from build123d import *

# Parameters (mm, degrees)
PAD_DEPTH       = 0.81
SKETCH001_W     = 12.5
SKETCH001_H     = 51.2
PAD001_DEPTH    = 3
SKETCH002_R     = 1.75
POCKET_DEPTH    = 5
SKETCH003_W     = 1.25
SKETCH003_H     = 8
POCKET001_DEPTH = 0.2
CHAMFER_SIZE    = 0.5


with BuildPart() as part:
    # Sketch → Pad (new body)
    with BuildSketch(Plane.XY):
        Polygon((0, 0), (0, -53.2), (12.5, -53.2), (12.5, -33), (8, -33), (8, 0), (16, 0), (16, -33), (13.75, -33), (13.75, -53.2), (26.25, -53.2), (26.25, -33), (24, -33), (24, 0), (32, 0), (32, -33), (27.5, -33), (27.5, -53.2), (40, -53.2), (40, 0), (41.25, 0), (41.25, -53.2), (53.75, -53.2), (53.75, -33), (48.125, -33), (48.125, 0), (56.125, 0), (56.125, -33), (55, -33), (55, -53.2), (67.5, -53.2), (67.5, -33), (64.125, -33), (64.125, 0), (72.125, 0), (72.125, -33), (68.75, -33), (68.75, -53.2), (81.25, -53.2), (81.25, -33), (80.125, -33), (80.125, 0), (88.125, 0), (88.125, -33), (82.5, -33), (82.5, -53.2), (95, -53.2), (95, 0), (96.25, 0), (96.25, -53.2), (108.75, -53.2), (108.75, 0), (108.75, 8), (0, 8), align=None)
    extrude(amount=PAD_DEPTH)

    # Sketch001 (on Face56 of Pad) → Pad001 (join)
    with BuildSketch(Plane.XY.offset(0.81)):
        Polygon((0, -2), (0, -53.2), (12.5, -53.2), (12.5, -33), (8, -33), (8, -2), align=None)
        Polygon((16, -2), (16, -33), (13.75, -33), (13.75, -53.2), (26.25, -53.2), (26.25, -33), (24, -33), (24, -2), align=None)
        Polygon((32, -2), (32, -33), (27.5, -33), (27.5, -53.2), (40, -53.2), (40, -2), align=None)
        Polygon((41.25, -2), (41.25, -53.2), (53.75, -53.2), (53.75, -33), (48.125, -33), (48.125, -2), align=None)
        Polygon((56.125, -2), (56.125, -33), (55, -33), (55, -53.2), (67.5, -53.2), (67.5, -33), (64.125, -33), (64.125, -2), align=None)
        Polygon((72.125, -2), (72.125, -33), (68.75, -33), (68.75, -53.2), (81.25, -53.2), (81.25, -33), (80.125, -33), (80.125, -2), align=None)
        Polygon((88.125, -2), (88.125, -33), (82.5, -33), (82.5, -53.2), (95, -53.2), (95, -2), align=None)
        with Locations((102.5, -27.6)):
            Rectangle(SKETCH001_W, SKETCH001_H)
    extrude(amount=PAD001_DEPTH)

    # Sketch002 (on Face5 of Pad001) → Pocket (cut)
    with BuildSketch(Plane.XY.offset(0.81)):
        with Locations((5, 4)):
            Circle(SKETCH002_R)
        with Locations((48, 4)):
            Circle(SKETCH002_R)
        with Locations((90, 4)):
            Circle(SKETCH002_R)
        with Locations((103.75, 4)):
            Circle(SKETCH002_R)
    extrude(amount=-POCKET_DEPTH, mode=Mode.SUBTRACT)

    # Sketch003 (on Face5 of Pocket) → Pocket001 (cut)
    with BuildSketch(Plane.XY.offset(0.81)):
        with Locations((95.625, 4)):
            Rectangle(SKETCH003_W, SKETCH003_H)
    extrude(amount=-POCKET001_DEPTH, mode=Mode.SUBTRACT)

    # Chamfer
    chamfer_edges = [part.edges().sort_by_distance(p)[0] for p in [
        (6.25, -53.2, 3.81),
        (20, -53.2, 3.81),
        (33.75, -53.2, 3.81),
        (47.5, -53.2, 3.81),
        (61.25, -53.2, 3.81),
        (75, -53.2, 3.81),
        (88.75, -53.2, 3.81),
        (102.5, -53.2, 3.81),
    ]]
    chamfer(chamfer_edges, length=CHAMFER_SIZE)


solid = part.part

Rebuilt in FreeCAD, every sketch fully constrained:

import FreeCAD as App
import Part
import Sketcher


def edges_at(feature, points):
    """Names of the edges that pass closest to the given points."""
    edges = feature.Shape.Edges
    near = lambda p: min(range(len(edges)), key=lambda i: edges[i].distToShape(Part.Vertex(*p))[0])
    return sorted({f"Edge{near(p) + 1}" for p in points})


def add_polygon(sketch, points):
    """Adds a closed chain of lines whose ends are joined by coincident constraints."""
    first, n = sketch.GeometryCount, len(points)
    for a, b in zip(points, points[1:] + points[:1]):
        sketch.addGeometry(Part.LineSegment(App.Vector(*a, 0), App.Vector(*b, 0)), False)
    for i in range(n):
        sketch.addConstraint(Sketcher.Constraint("Coincident", first + i, 2, first + (i + 1) % n, 1))

doc = App.newDocument("Part")
body = doc.addObject("PartDesign::Body", "Body")

# Sketch on XY plane
sketch1 = doc.addObject("Sketcher::SketchObject", "Sketch")
body.addObject(sketch1)
sketch1.AttachmentSupport = (doc.XY_Plane, [""])
sketch1.MapMode = "FlatFace"
add_polygon(sketch1, [(0, -53.2), (12.5, -53.2), (12.5, -33), (8, -33), (8, 0), (16, 0), (16, -33), (13.8, -33), (13.8, -53.2), (26.2, -53.2), (26.2, -33), (24, -33), (24, 0), (32, 0), (32, -33), (27.5, -33), (27.5, -53.2), (40, -53.2), (40, 0), (41.2, 0), (41.2, -53.2), (53.8, -53.2), (53.8, -33), (48.1, -33), (48.1, 0), (56.1, 0), (56.1, -33), (55, -33), (55, -53.2), (67.5, -53.2), (67.5, -33), (64.1, -33), (64.1, 0), (72.1, 0), (72.1, -33), (68.8, -33), (68.8, -53.2), (81.2, -53.2), (81.2, -33), (80.1, -33), (80.1, 0), (88.1, 0), (88.1, -33), (82.5, -33), (82.5, -53.2), (95, -53.2), (95, 0), (96.2, 0), (96.2, -53.2), (108.8, -53.2), (108.8, 8), (0, 8)])  # lines 0-51
sketch1.addConstraint(Sketcher.Constraint("Horizontal", 0))
sketch1.addConstraint(Sketcher.Constraint("Vertical", 1))
sketch1.addConstraint(Sketcher.Constraint("Horizontal", 2))
sketch1.addConstraint(Sketcher.Constraint("Vertical", 3))
sketch1.addConstraint(Sketcher.Constraint("Horizontal", 4))
sketch1.addConstraint(Sketcher.Constraint("Vertical", 5))
sketch1.addConstraint(Sketcher.Constraint("Horizontal", 6))
sketch1.addConstraint(Sketcher.Constraint("Vertical", 7))
sketch1.addConstraint(Sketcher.Constraint("Horizontal", 8))
sketch1.addConstraint(Sketcher.Constraint("Vertical", 9))
sketch1.addConstraint(Sketcher.Constraint("Horizontal", 10))
sketch1.addConstraint(Sketcher.Constraint("Vertical", 11))
sketch1.addConstraint(Sketcher.Constraint("Horizontal", 12))
sketch1.addConstraint(Sketcher.Constraint("Vertical", 13))
sketch1.addConstraint(Sketcher.Constraint("Horizontal", 14))
sketch1.addConstraint(Sketcher.Constraint("Vertical", 15))
sketch1.addConstraint(Sketcher.Constraint("Horizontal", 16))
sketch1.addConstraint(Sketcher.Constraint("Vertical", 17))
sketch1.addConstraint(Sketcher.Constraint("Horizontal", 18))
sketch1.addConstraint(Sketcher.Constraint("Vertical", 19))
sketch1.addConstraint(Sketcher.Constraint("Horizontal", 20))
sketch1.addConstraint(Sketcher.Constraint("Vertical", 21))
sketch1.addConstraint(Sketcher.Constraint("Horizontal", 22))
sketch1.addConstraint(Sketcher.Constraint("Vertical", 23))
sketch1.addConstraint(Sketcher.Constraint("Horizontal", 24))
sketch1.addConstraint(Sketcher.Constraint("Vertical", 25))
sketch1.addConstraint(Sketcher.Constraint("Horizontal", 26))
sketch1.addConstraint(Sketcher.Constraint("Vertical", 27))
sketch1.addConstraint(Sketcher.Constraint("Horizontal", 28))
sketch1.addConstraint(Sketcher.Constraint("Vertical", 29))
sketch1.addConstraint(Sketcher.Constraint("Horizontal", 30))
sketch1.addConstraint(Sketcher.Constraint("Vertical", 31))
sketch1.addConstraint(Sketcher.Constraint("Horizontal", 32))
sketch1.addConstraint(Sketcher.Constraint("Vertical", 33))
sketch1.addConstraint(Sketcher.Constraint("Horizontal", 34))
sketch1.addConstraint(Sketcher.Constraint("Vertical", 35))
sketch1.addConstraint(Sketcher.Constraint("Horizontal", 36))
sketch1.addConstraint(Sketcher.Constraint("Vertical", 37))
sketch1.addConstraint(Sketcher.Constraint("Horizontal", 38))
sketch1.addConstraint(Sketcher.Constraint("Vertical", 39))
sketch1.addConstraint(Sketcher.Constraint("Horizontal", 40))
sketch1.addConstraint(Sketcher.Constraint("Vertical", 41))
sketch1.addConstraint(Sketcher.Constraint("Horizontal", 42))
sketch1.addConstraint(Sketcher.Constraint("Vertical", 43))
sketch1.addConstraint(Sketcher.Constraint("Horizontal", 44))
sketch1.addConstraint(Sketcher.Constraint("Vertical", 45))
sketch1.addConstraint(Sketcher.Constraint("Horizontal", 46))
sketch1.addConstraint(Sketcher.Constraint("Vertical", 47))
sketch1.addConstraint(Sketcher.Constraint("Horizontal", 48))
sketch1.addConstraint(Sketcher.Constraint("Vertical", 49))
sketch1.addConstraint(Sketcher.Constraint("Horizontal", 50))
sketch1.addConstraint(Sketcher.Constraint("Vertical", 51))
sketch1.addConstraint(Sketcher.Constraint("PointOnObject", 3, 2, -1))
sketch1.addConstraint(Sketcher.Constraint("PointOnObject", 11, 2, -1))
sketch1.addConstraint(Sketcher.Constraint("PointOnObject", 17, 2, -1))
sketch1.addConstraint(Sketcher.Constraint("PointOnObject", 23, 2, -1))
sketch1.addConstraint(Sketcher.Constraint("PointOnObject", 31, 2, -1))
sketch1.addConstraint(Sketcher.Constraint("PointOnObject", 39, 2, -1))
sketch1.addConstraint(Sketcher.Constraint("PointOnObject", 45, 2, -1))
sketch1.addConstraint(Sketcher.Constraint("PointOnObject", 50, 2, -2))
sketch1.addConstraint(Sketcher.Constraint("Horizontal", 2, 2, 5, 2))
sketch1.addConstraint(Sketcher.Constraint("Horizontal", 0, 2, 7, 2))
sketch1.addConstraint(Sketcher.Constraint("Horizontal", 6, 2, 9, 2))
sketch1.addConstraint(Sketcher.Constraint("Horizontal", 10, 2, 13, 2))
sketch1.addConstraint(Sketcher.Constraint("Horizontal", 8, 2, 15, 2))
sketch1.addConstraint(Sketcher.Constraint("Horizontal", 16, 2, 19, 2))
sketch1.addConstraint(Sketcher.Constraint("Horizontal", 14, 2, 21, 2))
sketch1.addConstraint(Sketcher.Constraint("Horizontal", 22, 2, 25, 2))
sketch1.addConstraint(Sketcher.Constraint("Horizontal", 20, 2, 27, 2))
sketch1.addConstraint(Sketcher.Constraint("Horizontal", 26, 2, 29, 2))
sketch1.addConstraint(Sketcher.Constraint("Horizontal", 30, 2, 33, 2))
sketch1.addConstraint(Sketcher.Constraint("Horizontal", 28, 2, 35, 2))
sketch1.addConstraint(Sketcher.Constraint("Horizontal", 34, 2, 37, 2))
sketch1.addConstraint(Sketcher.Constraint("Horizontal", 38, 2, 41, 2))
sketch1.addConstraint(Sketcher.Constraint("Horizontal", 36, 2, 43, 2))
sketch1.addConstraint(Sketcher.Constraint("Horizontal", 44, 2, 47, 2))
sketch1.addConstraint(Sketcher.Constraint("Equal", 0, 8))
sketch1.addConstraint(Sketcher.Constraint("Equal", 6, 10))
sketch1.addConstraint(Sketcher.Constraint("Equal", 4, 12))
sketch1.addConstraint(Sketcher.Constraint("Equal", 2, 14))
sketch1.addConstraint(Sketcher.Constraint("Equal", 8, 16))
sketch1.addConstraint(Sketcher.Constraint("Equal", 16, 20))
sketch1.addConstraint(Sketcher.Constraint("Equal", 12, 24))
sketch1.addConstraint(Sketcher.Constraint("Equal", 20, 28))
sketch1.addConstraint(Sketcher.Constraint("Equal", 24, 32))
sketch1.addConstraint(Sketcher.Constraint("Equal", 30, 34))
sketch1.addConstraint(Sketcher.Constraint("Equal", 28, 36))
sketch1.addConstraint(Sketcher.Constraint("Equal", 26, 38))
sketch1.addConstraint(Sketcher.Constraint("Equal", 32, 40))
sketch1.addConstraint(Sketcher.Constraint("Equal", 22, 42))
sketch1.addConstraint(Sketcher.Constraint("Equal", 36, 44))
sketch1.addConstraint(Sketcher.Constraint("Equal", 18, 46))
sketch1.addConstraint(Sketcher.Constraint("Equal", 44, 48))
sketch1.addConstraint(Sketcher.Constraint("DistanceX", 4, 1, 4, 2, 8.0))
sketch1.addConstraint(Sketcher.Constraint("DistanceY", 3, 1, 3, 2, 33.0))
sketch1.addConstraint(Sketcher.Constraint("DistanceX", 0, 1, 0, 2, 12.5))
sketch1.addConstraint(Sketcher.Constraint("DistanceX", 2, 2, 2, 1, 4.5))
sketch1.addConstraint(Sketcher.Constraint("DistanceY", 1, 1, 1, 2, 20.2))
sketch1.addConstraint(Sketcher.Constraint("DistanceY", 49, 1, 49, 2, 61.2))
sketch1.addConstraint(Sketcher.Constraint("DistanceX", -1, 1, 10, 2, 24.0))
sketch1.addConstraint(Sketcher.Constraint("DistanceX", -1, 1, 26, 2, 55.0))
sketch1.addConstraint(Sketcher.Constraint("DistanceX", -1, 1, 44, 2, 95.0))
sketch1.addConstraint(Sketcher.Constraint("DistanceX", 8, 2, 19, 2, 15.0))
sketch1.addConstraint(Sketcher.Constraint("DistanceX", 25, 2, 30, 2, 8.0))
pad1 = doc.addObject("PartDesign::Pad", "Pad")
body.addObject(pad1)
pad1.Profile = sketch1
pad1.Length = 0.81

# Sketch on XY plane
sketch2 = doc.addObject("Sketcher::SketchObject", "Sketch001")
body.addObject(sketch2)
sketch2.AttachmentSupport = (doc.XY_Plane, [""])
sketch2.MapMode = "FlatFace"
sketch2.AttachmentOffset = App.Placement(App.Vector(0, 0, 0.81), App.Rotation())
add_polygon(sketch2, [(0, -2), (0, -53.2), (12.5, -53.2), (12.5, -33), (8, -33), (8, -2)])  # lines 0-5
add_polygon(sketch2, [(16, -2), (16, -33), (13.8, -33), (13.8, -53.2), (26.2, -53.2), (26.2, -33), (24, -33), (24, -2)])  # lines 6-13
add_polygon(sketch2, [(32, -2), (32, -33), (27.5, -33), (27.5, -53.2), (40, -53.2), (40, -2)])  # lines 14-19
add_polygon(sketch2, [(41.2, -2), (41.2, -53.2), (53.8, -53.2), (53.8, -33), (48.1, -33), (48.1, -2)])  # lines 20-25
add_polygon(sketch2, [(56.1, -2), (56.1, -33), (55, -33), (55, -53.2), (67.5, -53.2), (67.5, -33), (64.1, -33), (64.1, -2)])  # lines 26-33
add_polygon(sketch2, [(72.1, -2), (72.1, -33), (68.8, -33), (68.8, -53.2), (81.2, -53.2), (81.2, -33), (80.1, -33), (80.1, -2)])  # lines 34-41
add_polygon(sketch2, [(88.1, -2), (88.1, -33), (82.5, -33), (82.5, -53.2), (95, -53.2), (95, -2)])  # lines 42-47
add_polygon(sketch2, [(96.2, -2), (96.2, -53.2), (108.8, -53.2), (108.8, -2)])  # lines 48-51
sketch2.addConstraint(Sketcher.Constraint("Vertical", 0))
sketch2.addConstraint(Sketcher.Constraint("Horizontal", 1))
sketch2.addConstraint(Sketcher.Constraint("Vertical", 2))
sketch2.addConstraint(Sketcher.Constraint("Horizontal", 3))
sketch2.addConstraint(Sketcher.Constraint("Vertical", 4))
sketch2.addConstraint(Sketcher.Constraint("Horizontal", 5))
sketch2.addConstraint(Sketcher.Constraint("Vertical", 6))
sketch2.addConstraint(Sketcher.Constraint("Horizontal", 7))
sketch2.addConstraint(Sketcher.Constraint("Vertical", 8))
sketch2.addConstraint(Sketcher.Constraint("Horizontal", 9))
sketch2.addConstraint(Sketcher.Constraint("Vertical", 10))
sketch2.addConstraint(Sketcher.Constraint("Horizontal", 11))
sketch2.addConstraint(Sketcher.Constraint("Vertical", 12))
sketch2.addConstraint(Sketcher.Constraint("Horizontal", 13))
sketch2.addConstraint(Sketcher.Constraint("Vertical", 14))
sketch2.addConstraint(Sketcher.Constraint("Horizontal", 15))
sketch2.addConstraint(Sketcher.Constraint("Vertical", 16))
sketch2.addConstraint(Sketcher.Constraint("Horizontal", 17))
sketch2.addConstraint(Sketcher.Constraint("Vertical", 18))
sketch2.addConstraint(Sketcher.Constraint("Horizontal", 19))
sketch2.addConstraint(Sketcher.Constraint("Vertical", 20))
sketch2.addConstraint(Sketcher.Constraint("Horizontal", 21))
sketch2.addConstraint(Sketcher.Constraint("Vertical", 22))
sketch2.addConstraint(Sketcher.Constraint("Horizontal", 23))
sketch2.addConstraint(Sketcher.Constraint("Vertical", 24))
sketch2.addConstraint(Sketcher.Constraint("Horizontal", 25))
sketch2.addConstraint(Sketcher.Constraint("Vertical", 26))
sketch2.addConstraint(Sketcher.Constraint("Horizontal", 27))
sketch2.addConstraint(Sketcher.Constraint("Vertical", 28))
sketch2.addConstraint(Sketcher.Constraint("Horizontal", 29))
sketch2.addConstraint(Sketcher.Constraint("Vertical", 30))
sketch2.addConstraint(Sketcher.Constraint("Horizontal", 31))
sketch2.addConstraint(Sketcher.Constraint("Vertical", 32))
sketch2.addConstraint(Sketcher.Constraint("Horizontal", 33))
sketch2.addConstraint(Sketcher.Constraint("Vertical", 34))
sketch2.addConstraint(Sketcher.Constraint("Horizontal", 35))
sketch2.addConstraint(Sketcher.Constraint("Vertical", 36))
sketch2.addConstraint(Sketcher.Constraint("Horizontal", 37))
sketch2.addConstraint(Sketcher.Constraint("Vertical", 38))
sketch2.addConstraint(Sketcher.Constraint("Horizontal", 39))
sketch2.addConstraint(Sketcher.Constraint("Vertical", 40))
sketch2.addConstraint(Sketcher.Constraint("Horizontal", 41))
sketch2.addConstraint(Sketcher.Constraint("Vertical", 42))
sketch2.addConstraint(Sketcher.Constraint("Horizontal", 43))
sketch2.addConstraint(Sketcher.Constraint("Vertical", 44))
sketch2.addConstraint(Sketcher.Constraint("Horizontal", 45))
sketch2.addConstraint(Sketcher.Constraint("Vertical", 46))
sketch2.addConstraint(Sketcher.Constraint("Horizontal", 47))
sketch2.addConstraint(Sketcher.Constraint("Vertical", 48))
sketch2.addConstraint(Sketcher.Constraint("Horizontal", 49))
sketch2.addConstraint(Sketcher.Constraint("Vertical", 50))
sketch2.addConstraint(Sketcher.Constraint("Horizontal", 51))
sketch2.addConstraint(Sketcher.Constraint("PointOnObject", 0, 2, -2))
sketch2.addConstraint(Sketcher.Constraint("Horizontal", 3, 2, 6, 2))
sketch2.addConstraint(Sketcher.Constraint("Horizontal", 1, 2, 8, 2))
sketch2.addConstraint(Sketcher.Constraint("Horizontal", 7, 2, 10, 2))
sketch2.addConstraint(Sketcher.Constraint("Horizontal", 5, 2, 12, 2))
sketch2.addConstraint(Sketcher.Constraint("Horizontal", 11, 2, 14, 2))
sketch2.addConstraint(Sketcher.Constraint("Horizontal", 9, 2, 16, 2))
sketch2.addConstraint(Sketcher.Constraint("Horizontal", 13, 2, 18, 2))
sketch2.addConstraint(Sketcher.Constraint("Horizontal", 17, 2, 20, 2))
sketch2.addConstraint(Sketcher.Constraint("Horizontal", 15, 2, 22, 2))
sketch2.addConstraint(Sketcher.Constraint("Horizontal", 19, 2, 24, 2))
sketch2.addConstraint(Sketcher.Constraint("Horizontal", 23, 2, 26, 2))
sketch2.addConstraint(Sketcher.Constraint("Horizontal", 21, 2, 28, 2))
sketch2.addConstraint(Sketcher.Constraint("Horizontal", 27, 2, 30, 2))
sketch2.addConstraint(Sketcher.Constraint("Horizontal", 25, 2, 32, 2))
sketch2.addConstraint(Sketcher.Constraint("Horizontal", 31, 2, 34, 2))
sketch2.addConstraint(Sketcher.Constraint("Horizontal", 29, 2, 36, 2))
sketch2.addConstraint(Sketcher.Constraint("Horizontal", 35, 2, 38, 2))
sketch2.addConstraint(Sketcher.Constraint("Horizontal", 33, 2, 40, 2))
sketch2.addConstraint(Sketcher.Constraint("Horizontal", 39, 2, 42, 2))
sketch2.addConstraint(Sketcher.Constraint("Horizontal", 37, 2, 44, 2))
sketch2.addConstraint(Sketcher.Constraint("Horizontal", 41, 2, 46, 2))
sketch2.addConstraint(Sketcher.Constraint("Horizontal", 45, 2, 48, 2))
sketch2.addConstraint(Sketcher.Constraint("Horizontal", 47, 2, 50, 2))
sketch2.addConstraint(Sketcher.Constraint("Equal", 1, 9))
sketch2.addConstraint(Sketcher.Constraint("Equal", 7, 11))
sketch2.addConstraint(Sketcher.Constraint("Equal", 5, 13))
sketch2.addConstraint(Sketcher.Constraint("Equal", 3, 15))
sketch2.addConstraint(Sketcher.Constraint("Equal", 9, 17))
sketch2.addConstraint(Sketcher.Constraint("Equal", 17, 21))
sketch2.addConstraint(Sketcher.Constraint("Equal", 21, 29))
sketch2.addConstraint(Sketcher.Constraint("Equal", 19, 33))
sketch2.addConstraint(Sketcher.Constraint("Equal", 31, 35))
sketch2.addConstraint(Sketcher.Constraint("Equal", 29, 37))
sketch2.addConstraint(Sketcher.Constraint("Equal", 27, 39))
sketch2.addConstraint(Sketcher.Constraint("Equal", 23, 43))
sketch2.addConstraint(Sketcher.Constraint("Equal", 37, 45))
sketch2.addConstraint(Sketcher.Constraint("Equal", 45, 49))
sketch2.addConstraint(Sketcher.Constraint("DistanceX", 5, 2, 5, 1, 8.0))
sketch2.addConstraint(Sketcher.Constraint("DistanceY", 4, 1, 4, 2, 31.0))
sketch2.addConstraint(Sketcher.Constraint("DistanceX", 1, 1, 1, 2, 12.5))
sketch2.addConstraint(Sketcher.Constraint("DistanceY", 0, 2, 0, 1, 51.2))
sketch2.addConstraint(Sketcher.Constraint("DistanceY", 2, 2, -1, 1, 33.0))
sketch2.addConstraint(Sketcher.Constraint("DistanceX", -1, 1, 6, 2, 16.0))
sketch2.addConstraint(Sketcher.Constraint("DistanceX", -1, 1, 14, 2, 32.0))
sketch2.addConstraint(Sketcher.Constraint("DistanceX", -1, 1, 27, 2, 55.0))
sketch2.addConstraint(Sketcher.Constraint("DistanceX", -1, 1, 45, 2, 95.0))
sketch2.addConstraint(Sketcher.Constraint("DistanceX", 9, 2, 20, 2, 15.0))
sketch2.addConstraint(Sketcher.Constraint("DistanceX", 23, 2, 26, 2, 8.0))
sketch2.addConstraint(Sketcher.Constraint("DistanceX", 31, 2, 34, 2, 8.0))
sketch2.addConstraint(Sketcher.Constraint("DistanceX", 21, 2, 36, 2, 15.0))
sketch2.addConstraint(Sketcher.Constraint("DistanceX", 37, 2, 48, 2, 15.0))
pad2 = doc.addObject("PartDesign::Pad", "Pad001")
body.addObject(pad2)
pad2.Profile = sketch2
pad2.Length = 3

# Sketch on XY plane
sketch3 = doc.addObject("Sketcher::SketchObject", "Sketch002")
body.addObject(sketch3)
sketch3.AttachmentSupport = (doc.XY_Plane, [""])
sketch3.MapMode = "FlatFace"
sketch3.AttachmentOffset = App.Placement(App.Vector(0, 0, 0.81), App.Rotation())
sketch3.addGeometry(Part.Circle(App.Vector(5, 4, 0), App.Vector(0, 0, 1), 1.8), False)
sketch3.addGeometry(Part.Circle(App.Vector(48, 4, 0), App.Vector(0, 0, 1), 1.8), False)
sketch3.addGeometry(Part.Circle(App.Vector(90, 4, 0), App.Vector(0, 0, 1), 1.8), False)
sketch3.addGeometry(Part.Circle(App.Vector(103.8, 4, 0), App.Vector(0, 0, 1), 1.8), False)
sketch3.addConstraint(Sketcher.Constraint("Equal", 0, 1))
sketch3.addConstraint(Sketcher.Constraint("Equal", 1, 2))
sketch3.addConstraint(Sketcher.Constraint("Equal", 2, 3))
sketch3.addConstraint(Sketcher.Constraint("Horizontal", 0, 3, 1, 3))
sketch3.addConstraint(Sketcher.Constraint("Horizontal", 1, 3, 2, 3))
sketch3.addConstraint(Sketcher.Constraint("Horizontal", 2, 3, 3, 3))
sketch3.addConstraint(Sketcher.Constraint("Diameter", 0, 3.5))
sketch3.addConstraint(Sketcher.Constraint("DistanceX", -1, 1, 0, 3, 5.0))
sketch3.addConstraint(Sketcher.Constraint("DistanceY", -1, 1, 0, 3, 4.0))
sketch3.addConstraint(Sketcher.Constraint("DistanceX", -1, 1, 1, 3, 48.0))
sketch3.addConstraint(Sketcher.Constraint("DistanceX", -1, 1, 2, 3, 90.0))
sketch3.addConstraint(Sketcher.Constraint("DistanceX", -1, 1, 3, 3, 103.75))
pocket1 = doc.addObject("PartDesign::Pocket", "Pocket")
body.addObject(pocket1)
pocket1.Profile = sketch3
pocket1.Length = 5

# Sketch on XY plane
sketch4 = doc.addObject("Sketcher::SketchObject", "Sketch003")
body.addObject(sketch4)
sketch4.AttachmentSupport = (doc.XY_Plane, [""])
sketch4.MapMode = "FlatFace"
sketch4.AttachmentOffset = App.Placement(App.Vector(0, 0, 0.81), App.Rotation())
add_polygon(sketch4, [(95, 8), (95, 0), (96.2, 0), (96.2, 8)])  # lines 0-3
sketch4.addConstraint(Sketcher.Constraint("Vertical", 0))
sketch4.addConstraint(Sketcher.Constraint("Horizontal", 1))
sketch4.addConstraint(Sketcher.Constraint("Vertical", 2))
sketch4.addConstraint(Sketcher.Constraint("Horizontal", 3))
sketch4.addConstraint(Sketcher.Constraint("PointOnObject", 0, 2, -1))
sketch4.addConstraint(Sketcher.Constraint("DistanceY", 0, 2, 0, 1, 8.0))
sketch4.addConstraint(Sketcher.Constraint("DistanceX", -1, 1, 0, 2, 95.0))
sketch4.addConstraint(Sketcher.Constraint("DistanceX", 1, 1, 1, 2, 1.25))
pocket2 = doc.addObject("PartDesign::Pocket", "Pocket001")
body.addObject(pocket2)
pocket2.Profile = sketch4
pocket2.Length = 0.2
doc.recompute()

chamfer = doc.addObject("PartDesign::Chamfer", "Chamfer")
body.addObject(chamfer)
chamfer.Base = (pocket2, edges_at(pocket2, [
    (6.25, -53.2, 3.81),
    (20, -53.2, 3.81),
    (33.75, -53.2, 3.81),
    (47.5, -53.2, 3.81),
    (61.25, -53.2, 3.81),
    (75, -53.2, 3.81),
    (88.75, -53.2, 3.81),
    (102.5, -53.2, 3.81),
]))
chamfer.Size = 0.5

doc.recompute()
